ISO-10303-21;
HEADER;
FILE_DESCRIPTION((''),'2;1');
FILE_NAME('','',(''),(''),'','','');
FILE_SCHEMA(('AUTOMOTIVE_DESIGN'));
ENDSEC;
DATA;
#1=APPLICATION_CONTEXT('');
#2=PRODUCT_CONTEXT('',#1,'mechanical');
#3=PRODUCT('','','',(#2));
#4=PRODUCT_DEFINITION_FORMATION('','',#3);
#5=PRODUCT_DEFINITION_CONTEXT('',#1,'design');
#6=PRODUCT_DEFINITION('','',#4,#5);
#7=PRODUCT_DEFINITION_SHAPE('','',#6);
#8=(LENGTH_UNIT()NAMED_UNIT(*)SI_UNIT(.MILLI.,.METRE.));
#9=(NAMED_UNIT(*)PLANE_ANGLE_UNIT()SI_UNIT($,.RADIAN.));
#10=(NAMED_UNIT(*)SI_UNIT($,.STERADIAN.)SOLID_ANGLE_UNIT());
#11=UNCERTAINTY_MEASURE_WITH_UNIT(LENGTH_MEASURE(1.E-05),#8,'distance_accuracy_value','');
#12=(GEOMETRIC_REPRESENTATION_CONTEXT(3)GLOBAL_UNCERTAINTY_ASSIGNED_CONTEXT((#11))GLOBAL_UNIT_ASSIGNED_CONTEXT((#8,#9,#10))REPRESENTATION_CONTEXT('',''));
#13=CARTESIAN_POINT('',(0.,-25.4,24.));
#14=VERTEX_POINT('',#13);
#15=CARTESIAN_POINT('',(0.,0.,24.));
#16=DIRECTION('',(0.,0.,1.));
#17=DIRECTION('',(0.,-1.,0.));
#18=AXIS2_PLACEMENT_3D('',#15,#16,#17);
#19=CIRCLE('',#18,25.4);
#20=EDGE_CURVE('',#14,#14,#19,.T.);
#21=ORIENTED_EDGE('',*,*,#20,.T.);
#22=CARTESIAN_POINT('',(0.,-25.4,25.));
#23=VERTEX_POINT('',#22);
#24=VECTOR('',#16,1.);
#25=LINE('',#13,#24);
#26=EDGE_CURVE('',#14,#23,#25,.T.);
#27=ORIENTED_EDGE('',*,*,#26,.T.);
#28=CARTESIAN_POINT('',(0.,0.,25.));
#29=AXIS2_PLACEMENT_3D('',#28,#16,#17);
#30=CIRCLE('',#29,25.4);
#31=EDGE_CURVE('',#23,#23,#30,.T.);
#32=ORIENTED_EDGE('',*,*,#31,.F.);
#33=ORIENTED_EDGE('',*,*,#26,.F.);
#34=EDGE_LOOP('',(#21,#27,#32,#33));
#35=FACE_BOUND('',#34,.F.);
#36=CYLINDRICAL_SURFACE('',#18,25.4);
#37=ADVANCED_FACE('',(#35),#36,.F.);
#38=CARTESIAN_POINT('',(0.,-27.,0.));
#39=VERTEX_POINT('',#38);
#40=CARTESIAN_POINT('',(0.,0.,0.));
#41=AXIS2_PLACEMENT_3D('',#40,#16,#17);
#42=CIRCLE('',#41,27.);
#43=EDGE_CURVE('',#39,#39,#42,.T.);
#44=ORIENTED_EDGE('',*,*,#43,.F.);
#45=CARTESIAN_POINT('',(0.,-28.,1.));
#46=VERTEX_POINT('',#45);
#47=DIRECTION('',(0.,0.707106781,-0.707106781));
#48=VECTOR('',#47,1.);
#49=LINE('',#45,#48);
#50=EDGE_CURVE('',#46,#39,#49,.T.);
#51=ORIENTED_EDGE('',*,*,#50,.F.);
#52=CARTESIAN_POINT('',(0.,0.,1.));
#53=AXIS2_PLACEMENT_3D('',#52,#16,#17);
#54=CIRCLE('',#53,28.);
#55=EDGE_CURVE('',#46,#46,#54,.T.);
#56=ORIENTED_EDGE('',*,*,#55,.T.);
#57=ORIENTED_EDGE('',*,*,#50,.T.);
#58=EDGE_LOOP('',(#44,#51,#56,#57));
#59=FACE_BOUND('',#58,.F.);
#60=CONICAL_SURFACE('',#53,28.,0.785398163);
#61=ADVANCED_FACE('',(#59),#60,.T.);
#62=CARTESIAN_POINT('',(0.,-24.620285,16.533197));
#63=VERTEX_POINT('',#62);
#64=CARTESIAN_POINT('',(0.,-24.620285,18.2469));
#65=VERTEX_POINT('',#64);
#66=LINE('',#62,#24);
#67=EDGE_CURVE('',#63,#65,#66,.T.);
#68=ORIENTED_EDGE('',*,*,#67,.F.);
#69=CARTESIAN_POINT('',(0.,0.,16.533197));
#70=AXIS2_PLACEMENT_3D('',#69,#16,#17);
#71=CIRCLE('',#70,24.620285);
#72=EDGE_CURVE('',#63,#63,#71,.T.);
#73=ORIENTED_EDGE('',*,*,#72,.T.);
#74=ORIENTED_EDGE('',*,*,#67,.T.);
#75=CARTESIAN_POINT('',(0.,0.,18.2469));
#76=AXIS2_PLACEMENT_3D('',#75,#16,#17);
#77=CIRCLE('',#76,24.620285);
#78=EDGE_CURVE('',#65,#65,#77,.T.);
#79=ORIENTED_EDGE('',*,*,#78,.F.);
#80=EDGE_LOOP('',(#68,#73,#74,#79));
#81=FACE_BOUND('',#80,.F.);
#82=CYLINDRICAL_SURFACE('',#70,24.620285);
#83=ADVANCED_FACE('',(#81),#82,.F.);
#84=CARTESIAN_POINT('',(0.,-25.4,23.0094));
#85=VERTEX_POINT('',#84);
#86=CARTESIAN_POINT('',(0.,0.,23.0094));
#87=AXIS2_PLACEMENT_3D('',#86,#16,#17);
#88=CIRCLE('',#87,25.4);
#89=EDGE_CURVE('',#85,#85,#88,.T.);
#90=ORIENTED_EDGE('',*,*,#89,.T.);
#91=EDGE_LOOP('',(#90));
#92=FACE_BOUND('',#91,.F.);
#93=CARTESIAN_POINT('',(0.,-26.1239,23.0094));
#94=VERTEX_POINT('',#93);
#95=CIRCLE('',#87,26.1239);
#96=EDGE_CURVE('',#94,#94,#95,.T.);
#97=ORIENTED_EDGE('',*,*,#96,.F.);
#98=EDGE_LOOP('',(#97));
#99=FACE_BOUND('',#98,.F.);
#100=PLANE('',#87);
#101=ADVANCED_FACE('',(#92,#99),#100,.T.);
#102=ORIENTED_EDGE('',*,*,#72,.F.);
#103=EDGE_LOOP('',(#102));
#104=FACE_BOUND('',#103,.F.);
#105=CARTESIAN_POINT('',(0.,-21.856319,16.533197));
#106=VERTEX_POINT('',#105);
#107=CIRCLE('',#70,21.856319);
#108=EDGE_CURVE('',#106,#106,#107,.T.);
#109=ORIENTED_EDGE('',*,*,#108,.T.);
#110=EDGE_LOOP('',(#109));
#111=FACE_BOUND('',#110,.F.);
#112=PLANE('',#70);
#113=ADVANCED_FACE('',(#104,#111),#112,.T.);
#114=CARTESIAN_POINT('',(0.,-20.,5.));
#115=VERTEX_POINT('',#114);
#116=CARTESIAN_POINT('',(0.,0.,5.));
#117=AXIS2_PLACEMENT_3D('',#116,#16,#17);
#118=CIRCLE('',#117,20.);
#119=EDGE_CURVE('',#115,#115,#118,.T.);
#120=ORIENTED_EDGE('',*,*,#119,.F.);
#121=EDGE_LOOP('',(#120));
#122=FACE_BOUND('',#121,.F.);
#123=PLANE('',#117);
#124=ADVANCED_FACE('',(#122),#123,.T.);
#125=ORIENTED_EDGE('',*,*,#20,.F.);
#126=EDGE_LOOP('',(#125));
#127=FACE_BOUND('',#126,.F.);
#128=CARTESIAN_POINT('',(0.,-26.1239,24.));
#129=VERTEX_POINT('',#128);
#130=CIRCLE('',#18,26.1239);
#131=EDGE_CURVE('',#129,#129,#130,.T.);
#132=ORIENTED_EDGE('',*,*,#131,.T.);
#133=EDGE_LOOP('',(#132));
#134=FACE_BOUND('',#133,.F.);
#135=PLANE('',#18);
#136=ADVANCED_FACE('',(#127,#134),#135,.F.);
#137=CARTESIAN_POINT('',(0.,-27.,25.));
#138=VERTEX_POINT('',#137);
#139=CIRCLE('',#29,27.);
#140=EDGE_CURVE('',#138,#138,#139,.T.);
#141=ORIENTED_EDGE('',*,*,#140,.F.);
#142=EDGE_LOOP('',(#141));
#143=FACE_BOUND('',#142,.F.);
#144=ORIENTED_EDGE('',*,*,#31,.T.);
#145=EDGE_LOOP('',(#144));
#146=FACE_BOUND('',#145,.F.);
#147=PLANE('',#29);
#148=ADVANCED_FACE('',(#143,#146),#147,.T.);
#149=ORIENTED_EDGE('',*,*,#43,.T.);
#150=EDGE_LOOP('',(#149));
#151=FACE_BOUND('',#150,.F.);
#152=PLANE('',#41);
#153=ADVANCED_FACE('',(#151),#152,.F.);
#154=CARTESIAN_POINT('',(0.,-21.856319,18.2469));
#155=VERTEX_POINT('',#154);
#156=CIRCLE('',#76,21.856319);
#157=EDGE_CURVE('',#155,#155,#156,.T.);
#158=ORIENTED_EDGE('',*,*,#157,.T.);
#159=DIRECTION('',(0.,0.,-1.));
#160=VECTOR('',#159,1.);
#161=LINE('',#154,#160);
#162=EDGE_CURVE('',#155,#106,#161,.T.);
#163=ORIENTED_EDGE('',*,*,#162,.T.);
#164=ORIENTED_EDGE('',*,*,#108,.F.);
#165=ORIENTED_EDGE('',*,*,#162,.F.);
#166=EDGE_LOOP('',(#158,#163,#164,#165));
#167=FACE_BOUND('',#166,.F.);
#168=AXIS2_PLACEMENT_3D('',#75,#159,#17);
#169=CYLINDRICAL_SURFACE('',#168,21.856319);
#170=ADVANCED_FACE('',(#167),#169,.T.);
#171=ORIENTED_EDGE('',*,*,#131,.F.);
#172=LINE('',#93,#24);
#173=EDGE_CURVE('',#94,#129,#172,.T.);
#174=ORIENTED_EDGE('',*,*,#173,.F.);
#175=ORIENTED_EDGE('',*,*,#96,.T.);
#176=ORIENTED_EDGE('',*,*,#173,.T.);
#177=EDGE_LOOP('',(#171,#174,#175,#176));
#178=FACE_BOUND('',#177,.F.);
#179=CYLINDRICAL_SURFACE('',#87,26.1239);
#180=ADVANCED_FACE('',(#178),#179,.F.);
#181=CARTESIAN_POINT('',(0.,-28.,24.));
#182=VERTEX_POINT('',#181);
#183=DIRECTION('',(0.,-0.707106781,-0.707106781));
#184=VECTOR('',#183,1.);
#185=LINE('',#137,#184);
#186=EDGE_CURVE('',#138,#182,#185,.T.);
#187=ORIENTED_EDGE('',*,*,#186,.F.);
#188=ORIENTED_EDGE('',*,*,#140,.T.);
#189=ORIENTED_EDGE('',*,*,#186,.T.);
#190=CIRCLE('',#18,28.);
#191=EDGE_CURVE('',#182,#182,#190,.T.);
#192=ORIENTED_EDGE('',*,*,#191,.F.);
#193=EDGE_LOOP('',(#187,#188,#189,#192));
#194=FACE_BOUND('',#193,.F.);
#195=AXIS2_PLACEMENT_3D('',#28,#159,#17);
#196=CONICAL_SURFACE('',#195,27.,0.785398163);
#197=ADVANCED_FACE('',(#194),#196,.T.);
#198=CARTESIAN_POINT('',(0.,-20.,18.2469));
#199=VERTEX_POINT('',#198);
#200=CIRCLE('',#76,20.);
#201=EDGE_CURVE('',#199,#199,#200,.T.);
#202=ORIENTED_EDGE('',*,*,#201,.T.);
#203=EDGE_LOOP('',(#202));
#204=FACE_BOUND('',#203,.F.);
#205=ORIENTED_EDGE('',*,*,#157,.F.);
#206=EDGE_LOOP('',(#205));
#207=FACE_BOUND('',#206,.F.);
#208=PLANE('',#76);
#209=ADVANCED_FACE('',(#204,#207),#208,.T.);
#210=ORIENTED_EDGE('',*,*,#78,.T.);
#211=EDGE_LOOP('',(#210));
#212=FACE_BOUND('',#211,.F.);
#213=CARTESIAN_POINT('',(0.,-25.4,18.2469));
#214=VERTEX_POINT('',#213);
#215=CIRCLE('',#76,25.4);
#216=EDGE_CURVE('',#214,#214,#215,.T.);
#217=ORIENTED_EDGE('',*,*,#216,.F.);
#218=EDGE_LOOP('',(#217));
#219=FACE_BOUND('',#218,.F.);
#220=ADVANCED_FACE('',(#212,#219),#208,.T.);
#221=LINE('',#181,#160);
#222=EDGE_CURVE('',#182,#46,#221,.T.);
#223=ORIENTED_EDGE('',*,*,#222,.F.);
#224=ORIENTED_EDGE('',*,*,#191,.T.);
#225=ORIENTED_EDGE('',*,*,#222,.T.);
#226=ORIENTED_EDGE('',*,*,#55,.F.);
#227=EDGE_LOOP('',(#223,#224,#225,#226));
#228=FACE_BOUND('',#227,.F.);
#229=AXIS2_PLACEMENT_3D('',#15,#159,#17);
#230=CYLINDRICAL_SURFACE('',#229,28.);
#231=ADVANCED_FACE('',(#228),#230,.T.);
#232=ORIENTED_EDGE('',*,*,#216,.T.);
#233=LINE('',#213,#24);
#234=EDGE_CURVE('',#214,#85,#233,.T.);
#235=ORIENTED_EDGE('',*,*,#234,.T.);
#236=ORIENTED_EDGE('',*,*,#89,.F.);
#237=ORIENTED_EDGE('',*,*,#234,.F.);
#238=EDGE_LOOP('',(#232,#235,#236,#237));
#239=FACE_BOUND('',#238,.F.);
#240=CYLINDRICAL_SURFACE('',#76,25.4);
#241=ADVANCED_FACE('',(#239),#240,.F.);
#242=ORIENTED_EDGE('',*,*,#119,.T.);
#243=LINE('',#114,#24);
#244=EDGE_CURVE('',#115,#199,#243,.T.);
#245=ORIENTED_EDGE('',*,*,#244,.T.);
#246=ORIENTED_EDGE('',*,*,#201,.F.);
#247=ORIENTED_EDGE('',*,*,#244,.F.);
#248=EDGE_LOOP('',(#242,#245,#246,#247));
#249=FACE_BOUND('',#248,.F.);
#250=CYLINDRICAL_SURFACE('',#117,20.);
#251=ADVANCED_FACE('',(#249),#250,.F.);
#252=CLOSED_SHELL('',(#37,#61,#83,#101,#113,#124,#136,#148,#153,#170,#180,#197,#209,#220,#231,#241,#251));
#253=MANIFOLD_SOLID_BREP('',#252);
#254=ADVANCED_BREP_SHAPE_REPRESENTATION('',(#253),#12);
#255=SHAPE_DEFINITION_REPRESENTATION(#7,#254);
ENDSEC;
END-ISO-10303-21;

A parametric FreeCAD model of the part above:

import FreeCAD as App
import Part
import Sketcher

doc = App.newDocument("Part")
body = doc.addObject("PartDesign::Body", "Body")

sketch1 = doc.addObject("Sketcher::SketchObject", "Sketch")
body.addObject(sketch1)
sketch1.AttachmentSupport = (doc.YZ_Plane, [""])
sketch1.MapMode = "FlatFace"
sketch1.addGeometry([
    Part.LineSegment(App.Vector(-25.4, 24, 0), App.Vector(-25.4, 25, 0)),
    Part.LineSegment(App.Vector(-25.4, 25, 0), App.Vector(-27, 25, 0)),
    Part.LineSegment(App.Vector(-27, 25, 0), App.Vector(-28, 24, 0)),
    Part.LineSegment(App.Vector(-28, 24, 0), App.Vector(-28, 1, 0)),
    Part.LineSegment(App.Vector(-28, 1, 0), App.Vector(-27, 0, 0)),
    Part.LineSegment(App.Vector(-27, 0, 0), App.Vector(0, 0, 0)),
    Part.LineSegment(App.Vector(0, 0, 0), App.Vector(0, 5, 0)),
    Part.LineSegment(App.Vector(0, 5, 0), App.Vector(-20, 5, 0)),
    Part.LineSegment(App.Vector(-20, 5, 0), App.Vector(-20, 18.2, 0)),
    Part.LineSegment(App.Vector(-20, 18.2, 0), App.Vector(-21.9, 18.2, 0)),
    Part.LineSegment(App.Vector(-21.9, 18.2, 0), App.Vector(-21.9, 16.5, 0)),
    Part.LineSegment(App.Vector(-21.9, 16.5, 0), App.Vector(-24.6, 16.5, 0)),
    Part.LineSegment(App.Vector(-24.6, 16.5, 0), App.Vector(-24.6, 18.2, 0)),
    Part.LineSegment(App.Vector(-24.6, 18.2, 0), App.Vector(-25.4, 18.2, 0)),
    Part.LineSegment(App.Vector(-25.4, 18.2, 0), App.Vector(-25.4, 23, 0)),
    Part.LineSegment(App.Vector(-25.4, 23, 0), App.Vector(-26.1, 23, 0)),
    Part.LineSegment(App.Vector(-26.1, 23, 0), App.Vector(-26.1, 24, 0)),
    Part.LineSegment(App.Vector(-26.1, 24, 0), App.Vector(-25.4, 24, 0)),
], False)
sketch1.addConstraint([
    Sketcher.Constraint("Coincident", 0, 2, 1, 1),
    Sketcher.Constraint("Coincident", 1, 2, 2, 1),
    Sketcher.Constraint("Coincident", 2, 2, 3, 1),
    Sketcher.Constraint("Coincident", 3, 2, 4, 1),
    Sketcher.Constraint("Coincident", 4, 2, 5, 1),
    Sketcher.Constraint("Coincident", 5, 2, 6, 1),
    Sketcher.Constraint("Coincident", 6, 2, 7, 1),
    Sketcher.Constraint("Coincident", 7, 2, 8, 1),
    Sketcher.Constraint("Coincident", 8, 2, 9, 1),
    Sketcher.Constraint("Coincident", 9, 2, 10, 1),
    Sketcher.Constraint("Coincident", 10, 2, 11, 1),
    Sketcher.Constraint("Coincident", 11, 2, 12, 1),
    Sketcher.Constraint("Coincident", 12, 2, 13, 1),
    Sketcher.Constraint("Coincident", 13, 2, 14, 1),
    Sketcher.Constraint("Coincident", 14, 2, 15, 1),
    Sketcher.Constraint("Coincident", 15, 2, 16, 1),
    Sketcher.Constraint("Coincident", 16, 2, 17, 1),
    Sketcher.Constraint("Coincident", 17, 2, 0, 1),
    Sketcher.Constraint("Vertical", 0),
    Sketcher.Constraint("Horizontal", 1),
    Sketcher.Constraint("Vertical", 3),
    Sketcher.Constraint("Horizontal", 5),
    Sketcher.Constraint("Vertical", 6),
    Sketcher.Constraint("Horizontal", 7),
    Sketcher.Constraint("Vertical", 8),
    Sketcher.Constraint("Horizontal", 9),
    Sketcher.Constraint("Vertical", 10),
    Sketcher.Constraint("Horizontal", 11),
    Sketcher.Constraint("Vertical", 12),
    Sketcher.Constraint("Horizontal", 13),
    Sketcher.Constraint("Vertical", 14),
    Sketcher.Constraint("Horizontal", 15),
    Sketcher.Constraint("Vertical", 16),
    Sketcher.Constraint("Horizontal", 17),
    Sketcher.Constraint("Coincident", 5, 2, -1, 1),
    Sketcher.Constraint("Perpendicular", 2, 4),
    Sketcher.Constraint("Horizontal", 9, 2, 12, 2),
    Sketcher.Constraint("Horizontal", 2, 2, 16, 2),
    Sketcher.Constraint("Vertical", 1, 2, 4, 2),
    Sketcher.Constraint("Vertical", 0, 2, 13, 2),
    Sketcher.Constraint("Equal", 2, 4),
    Sketcher.Constraint("DistanceX", 5, 1, 5, 2, 27.0),
    Sketcher.Constraint("DistanceX", 7, 2, 7, 1, 20.0),
    Sketcher.Constraint("DistanceY", 0, 1, 0, 2, 1.0),
    Sketcher.Constraint("DistanceY", 3, 2, 3, 1, 23.0),
    Sketcher.Constraint("DistanceY", 6, 1, 6, 2, 5.0),
    Sketcher.Constraint("DistanceX", 1, 2, 1, 1, 1.6),
    Sketcher.Constraint("DistanceX", 15, 2, 15, 1, 0.7239),
    Sketcher.Constraint("DistanceY", 8, 1, 8, 2, 13.2469),
    Sketcher.Constraint("DistanceY", 14, 1, 14, 2, 4.7625),
    Sketcher.Constraint("DistanceX", 9, 2, 9, 1, 1.856319),
    Sketcher.Constraint("DistanceX", 11, 2, 11, 1, 2.763966),
    Sketcher.Constraint("DistanceY", 10, 2, 10, 1, 1.713703),
])
revolution = doc.addObject("PartDesign::Revolution", "Revolution")
body.addObject(revolution)
revolution.Profile = sketch1
revolution.ReferenceAxis = (sketch1, ["V_Axis"])
revolution.Angle = 360

doc.recompute()
